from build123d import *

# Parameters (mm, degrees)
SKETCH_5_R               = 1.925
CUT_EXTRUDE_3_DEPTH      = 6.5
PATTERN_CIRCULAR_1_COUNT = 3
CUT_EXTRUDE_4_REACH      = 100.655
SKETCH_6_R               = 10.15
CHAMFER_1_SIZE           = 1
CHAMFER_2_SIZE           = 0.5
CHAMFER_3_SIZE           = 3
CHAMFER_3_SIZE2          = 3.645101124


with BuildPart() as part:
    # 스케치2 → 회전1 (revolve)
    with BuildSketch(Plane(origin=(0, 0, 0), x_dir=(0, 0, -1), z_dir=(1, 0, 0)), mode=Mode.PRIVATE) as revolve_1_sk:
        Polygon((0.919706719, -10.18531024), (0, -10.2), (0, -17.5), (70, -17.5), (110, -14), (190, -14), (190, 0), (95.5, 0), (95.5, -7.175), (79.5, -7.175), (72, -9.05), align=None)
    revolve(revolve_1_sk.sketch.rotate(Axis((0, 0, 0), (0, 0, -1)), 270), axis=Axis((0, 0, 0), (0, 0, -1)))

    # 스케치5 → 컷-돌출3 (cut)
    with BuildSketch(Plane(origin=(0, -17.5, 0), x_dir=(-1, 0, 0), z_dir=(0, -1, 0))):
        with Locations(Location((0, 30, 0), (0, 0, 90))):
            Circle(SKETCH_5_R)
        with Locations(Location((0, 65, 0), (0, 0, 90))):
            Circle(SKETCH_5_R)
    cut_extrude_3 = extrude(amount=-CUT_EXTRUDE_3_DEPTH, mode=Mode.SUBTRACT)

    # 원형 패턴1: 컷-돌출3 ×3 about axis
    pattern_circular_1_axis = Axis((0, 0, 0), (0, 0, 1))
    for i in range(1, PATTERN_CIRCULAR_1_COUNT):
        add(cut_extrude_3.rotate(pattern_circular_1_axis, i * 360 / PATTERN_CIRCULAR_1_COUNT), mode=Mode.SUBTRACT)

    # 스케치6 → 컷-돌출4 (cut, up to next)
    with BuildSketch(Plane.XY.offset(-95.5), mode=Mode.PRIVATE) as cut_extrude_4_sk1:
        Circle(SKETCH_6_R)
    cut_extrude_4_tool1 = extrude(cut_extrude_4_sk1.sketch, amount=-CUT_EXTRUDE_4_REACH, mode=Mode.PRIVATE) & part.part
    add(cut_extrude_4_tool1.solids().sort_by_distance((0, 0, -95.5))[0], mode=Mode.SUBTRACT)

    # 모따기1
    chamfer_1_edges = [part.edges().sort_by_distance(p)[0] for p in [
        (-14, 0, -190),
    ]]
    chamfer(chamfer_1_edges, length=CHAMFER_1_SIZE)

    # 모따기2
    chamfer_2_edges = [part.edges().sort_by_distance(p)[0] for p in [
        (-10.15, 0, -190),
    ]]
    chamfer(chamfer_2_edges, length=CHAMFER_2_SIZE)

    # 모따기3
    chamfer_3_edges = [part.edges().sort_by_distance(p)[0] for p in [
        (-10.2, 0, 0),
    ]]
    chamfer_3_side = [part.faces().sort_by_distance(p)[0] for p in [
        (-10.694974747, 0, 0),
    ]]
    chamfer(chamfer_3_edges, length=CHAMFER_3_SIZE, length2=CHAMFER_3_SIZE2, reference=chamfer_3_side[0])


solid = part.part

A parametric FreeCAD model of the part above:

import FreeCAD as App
import Part
import Sketcher
from FreeCAD import Vector
Q = App.Units.Quantity


def edges_at(feature, points):
    """Names of the edges that pass closest to the given points."""
    edges = feature.Shape.Edges
    near = lambda p: min(range(len(edges)), key=lambda i: edges[i].distToShape(Part.Vertex(*p))[0])
    return sorted({f"Edge{near(p) + 1}" for p in points})

doc = App.newDocument("Part")
body = doc.addObject("PartDesign::Body", "Body")

sketch1 = body.newObject("Sketcher::SketchObject", "Sketch")
sketch1.AttachmentSupport = (doc.getObject("YZ_Plane"), [""])
sketch1.MapMode = "FlatFace"
sketch1.addGeometry(Part.LineSegment(Vector(-10.2, -0.9, 0), Vector(-10.2, 0, 0)), False)
sketch1.addGeometry(Part.LineSegment(Vector(-10.2, 0, 0), Vector(-17.5, 0, 0)), False)
sketch1.addGeometry(Part.LineSegment(Vector(-17.5, 0, 0), Vector(-17.5, -70, 0)), False)
sketch1.addGeometry(Part.LineSegment(Vector(-17.5, -70, 0), Vector(-14, -110, 0)), False)
sketch1.addGeometry(Part.LineSegment(Vector(-14, -110, 0), Vector(-14, -190, 0)), False)
sketch1.addGeometry(Part.LineSegment(Vector(-14, -190, 0), Vector(0, -190, 0)), False)
sketch1.addGeometry(Part.LineSegment(Vector(0, -190, 0), Vector(0, -95.5, 0)), False)
sketch1.addGeometry(Part.LineSegment(Vector(0, -95.5, 0), Vector(-7.2, -95.5, 0)), False)
sketch1.addGeometry(Part.LineSegment(Vector(-7.2, -95.5, 0), Vector(-7.2, -79.5, 0)), False)
sketch1.addGeometry(Part.LineSegment(Vector(-7.2, -79.5, 0), Vector(-9.1, -72, 0)), False)
sketch1.addGeometry(Part.LineSegment(Vector(-9.1, -72, 0), Vector(-10.2, -0.9, 0)), False)
sketch1.addConstraint(Sketcher.Constraint("Coincident", 0, 2, 1, 1))
sketch1.addConstraint(Sketcher.Constraint("Coincident", 1, 2, 2, 1))
sketch1.addConstraint(Sketcher.Constraint("Coincident", 2, 2, 3, 1))
sketch1.addConstraint(Sketcher.Constraint("Coincident", 3, 2, 4, 1))
sketch1.addConstraint(Sketcher.Constraint("Coincident", 4, 2, 5, 1))
sketch1.addConstraint(Sketcher.Constraint("Coincident", 5, 2, 6, 1))
sketch1.addConstraint(Sketcher.Constraint("Coincident", 6, 2, 7, 1))
sketch1.addConstraint(Sketcher.Constraint("Coincident", 7, 2, 8, 1))
sketch1.addConstraint(Sketcher.Constraint("Coincident", 8, 2, 9, 1))
sketch1.addConstraint(Sketcher.Constraint("Coincident", 9, 2, 10, 1))
sketch1.addConstraint(Sketcher.Constraint("Coincident", 10, 2, 0, 1))
sketch1.addConstraint(Sketcher.Constraint("Horizontal", 1))
sketch1.addConstraint(Sketcher.Constraint("Vertical", 2))
sketch1.addConstraint(Sketcher.Constraint("Vertical", 4))
sketch1.addConstraint(Sketcher.Constraint("Horizontal", 5))
sketch1.addConstraint(Sketcher.Constraint("Vertical", 6))
sketch1.addConstraint(Sketcher.Constraint("Horizontal", 7))
sketch1.addConstraint(Sketcher.Constraint("Vertical", 8))
sketch1.addConstraint(Sketcher.Constraint("PointOnObject", 0, 2, -1))
sketch1.addConstraint(Sketcher.Constraint("PointOnObject", 5, 2, -2))
sketch1.addConstraint(Sketcher.Constraint("Parallel", 0, 10))
sketch1.addConstraint(Sketcher.Constraint("DistanceX", 5, 1, 5, 2, Q("14 mm")))
sketch1.addConstraint(Sketcher.Constraint("DistanceY", 2, 2, 2, 1, Q("70 mm")))
sketch1.addConstraint(Sketcher.Constraint("DistanceY", 4, 2, 4, 1, Q("80 mm")))
sketch1.addConstraint(Sketcher.Constraint("DistanceY", 8, 1, 8, 2, Q("16 mm")))
sketch1.addConstraint(Sketcher.Constraint("DistanceX", 1, 2, 1, 1, Q("7.3 mm")))
sketch1.addConstraint(Sketcher.Constraint("DistanceY", 6, 1, 6, 2, Q("94.5 mm")))
sketch1.addConstraint(Sketcher.Constraint("DistanceY", 3, 2, -1, 1, Q("110 mm")))
sketch1.addConstraint(Sketcher.Constraint("DistanceY", 9, 2, -1, 1, Q("72 mm")))
sketch1.addConstraint(Sketcher.Constraint("DistanceX", 0, 2, -1, 1, Q("10.2 mm")))
sketch1.addConstraint(Sketcher.Constraint("DistanceX", 7, 2, 7, 1, Q("7.175 mm")))
sketch1.addConstraint(Sketcher.Constraint("DistanceX", 9, 2, -1, 1, Q("9.05 mm")))
sketch1.addConstraint(Sketcher.Constraint("Distance", 10, Q("71.089359 mm")))
revolution = body.newObject("PartDesign::Revolution", "Revolution")
revolution.Profile = sketch1
revolution.ReferenceAxis = (sketch1, ["V_Axis"])
revolution.Angle = 360

sketch2 = body.newObject("Sketcher::SketchObject", "Sketch001")
sketch2.AttachmentSupport = (doc.getObject("XZ_Plane"), [""])
sketch2.MapMode = "FlatFace"
sketch2.AttachmentOffset = App.Placement(Vector(0, 0, 17.5), App.Rotation())
sketch2.addGeometry(Part.Circle(Vector(0, -30, 0), Vector(0, 0, 1), 1.9), False)
sketch2.addGeometry(Part.Circle(Vector(0, -65, 0), Vector(0, 0, 1), 1.9), False)
sketch2.addConstraint(Sketcher.Constraint("Equal", 0, 1))
sketch2.addConstraint(Sketcher.Constraint("PointOnObject", 0, 3, -2))
sketch2.addConstraint(Sketcher.Constraint("PointOnObject", 1, 3, -2))
sketch2.addConstraint(Sketcher.Constraint("Diameter", 0, Q("3.85 mm")))
sketch2.addConstraint(Sketcher.Constraint("DistanceY", 0, 3, -1, 1, Q("30 mm")))
sketch2.addConstraint(Sketcher.Constraint("DistanceY", 1, 3, -1, 1, Q("65 mm")))
pocket1 = body.newObject("PartDesign::Pocket", "Pocket")
pocket1.Profile = sketch2
pocket1.Length = 6.5
doc.recompute()

polarpattern = body.newObject("PartDesign::PolarPattern", "PolarPattern")
polarpattern.Originals = [pocket1]
polarpattern.Axis = (doc.getObject("Z_Axis"), [""])
polarpattern.Angle = 360
polarpattern.Occurrences = 3
body.Tip = polarpattern

sketch3 = body.newObject("Sketcher::SketchObject", "Sketch002")
sketch3.AttachmentSupport = (doc.getObject("XY_Plane"), [""])
sketch3.MapMode = "FlatFace"
sketch3.AttachmentOffset = App.Placement(Vector(0, 0, -95.5), App.Rotation())
sketch3.addGeometry(Part.Circle(Vector(0, 0, 0), Vector(0, 0, 1), 10), False)
sketch3.addConstraint(Sketcher.Constraint("Coincident", 0, 3, -1, 1))
sketch3.addConstraint(Sketcher.Constraint("Diameter", 0, Q("20.3 mm")))
pocket2 = body.newObject("PartDesign::Pocket", "Pocket001")
pocket2.Profile = sketch3
pocket2.Type = "UpToFirst"
doc.recompute()

chamfer = body.newObject("PartDesign::Chamfer", "Chamfer")
chamfer.Base = (pocket2, edges_at(pocket2, [(-14, 0, -190)]))
chamfer.Size = 1
doc.recompute()

chamfer2 = body.newObject("PartDesign::Chamfer", "Chamfer001")
chamfer2.Base = (chamfer, edges_at(chamfer, [(-10.15, 0, -190)]))
chamfer2.Size = 0.5
doc.recompute()

chamfer3 = body.newObject("PartDesign::Chamfer", "Chamfer002")
chamfer3.Base = (chamfer2, edges_at(chamfer2, [(-10.2, 0, 0)]))
chamfer3.ChamferType = "Two distances"
chamfer3.Size = 3
chamfer3.Size2 = 3.645101

doc.recompute()
